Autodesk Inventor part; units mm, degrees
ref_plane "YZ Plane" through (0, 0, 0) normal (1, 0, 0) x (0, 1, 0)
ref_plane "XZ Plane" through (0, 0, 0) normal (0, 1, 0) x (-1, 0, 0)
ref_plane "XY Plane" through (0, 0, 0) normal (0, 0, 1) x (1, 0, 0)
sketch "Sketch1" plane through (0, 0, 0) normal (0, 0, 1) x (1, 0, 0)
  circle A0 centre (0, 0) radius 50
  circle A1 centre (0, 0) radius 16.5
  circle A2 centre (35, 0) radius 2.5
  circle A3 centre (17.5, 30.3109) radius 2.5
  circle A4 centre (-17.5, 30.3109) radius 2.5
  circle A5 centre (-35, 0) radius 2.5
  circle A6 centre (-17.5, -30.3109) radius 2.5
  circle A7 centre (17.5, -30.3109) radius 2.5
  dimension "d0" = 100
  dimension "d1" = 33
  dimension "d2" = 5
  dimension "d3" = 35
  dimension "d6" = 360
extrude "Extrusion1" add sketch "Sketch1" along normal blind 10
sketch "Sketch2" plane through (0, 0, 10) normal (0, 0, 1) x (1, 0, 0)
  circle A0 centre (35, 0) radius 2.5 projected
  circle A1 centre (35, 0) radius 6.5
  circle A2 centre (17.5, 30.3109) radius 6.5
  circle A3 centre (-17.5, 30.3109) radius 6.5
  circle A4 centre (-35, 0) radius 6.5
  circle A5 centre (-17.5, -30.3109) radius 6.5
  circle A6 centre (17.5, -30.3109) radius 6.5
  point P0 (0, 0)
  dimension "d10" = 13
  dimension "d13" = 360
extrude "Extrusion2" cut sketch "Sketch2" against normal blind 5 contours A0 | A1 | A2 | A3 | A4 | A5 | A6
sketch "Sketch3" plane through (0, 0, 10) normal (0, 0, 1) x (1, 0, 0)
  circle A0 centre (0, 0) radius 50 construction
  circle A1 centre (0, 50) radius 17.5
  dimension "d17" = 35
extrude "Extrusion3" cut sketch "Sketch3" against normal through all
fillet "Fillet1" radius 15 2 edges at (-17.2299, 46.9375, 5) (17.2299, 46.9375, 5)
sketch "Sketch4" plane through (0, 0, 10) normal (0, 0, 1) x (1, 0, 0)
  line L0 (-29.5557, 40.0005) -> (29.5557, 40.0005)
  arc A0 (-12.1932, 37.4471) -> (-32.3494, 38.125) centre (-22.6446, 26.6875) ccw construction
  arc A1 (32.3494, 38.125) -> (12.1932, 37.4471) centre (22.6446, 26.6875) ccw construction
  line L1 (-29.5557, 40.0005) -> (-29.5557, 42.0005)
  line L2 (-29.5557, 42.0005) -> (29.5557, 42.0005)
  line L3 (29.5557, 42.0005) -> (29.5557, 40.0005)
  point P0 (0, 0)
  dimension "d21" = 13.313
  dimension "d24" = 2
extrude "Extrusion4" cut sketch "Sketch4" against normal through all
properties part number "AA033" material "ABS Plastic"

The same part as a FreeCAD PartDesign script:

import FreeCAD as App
import Part
import Sketcher

V = App.Vector


def edges_at(feature, points):
    """Names of the edges that pass closest to the given points."""
    edges = feature.Shape.Edges
    near = lambda p: min(range(len(edges)), key=lambda i: edges[i].distToShape(Part.Vertex(*p))[0])
    return sorted({f"Edge{near(p) + 1}" for p in points})

doc = App.newDocument("Part")
params = doc.addObject("Spreadsheet::Sheet", "Params")
for row, (alias, value) in enumerate([
    ("sketch1_diameter", "100 mm"),
    ("sketch1_diameter2", "5 mm"),
    ("sketch1_diameter3", "33 mm"),
    ("pad1_length", "10 mm"),
    ("sketch2_diameter", "13 mm"),
    ("pocket1_length", "5 mm"),
    ("sketch3_diameter", "35 mm"),
    ("fillet_radius", "15 mm"),
    ("sketch4_height", "2 mm"),
], start=1):
    params.set(f"A{row}", alias)
    params.set(f"B{row}", "=" + value)
    params.setAlias(f"B{row}", alias)

body = doc.addObject("PartDesign::Body", "Body")

# Sketch on XY plane
sketch1 = doc.addObject("Sketcher::SketchObject", "Sketch")
body.addObject(sketch1)
sketch1.AttachmentSupport = (doc.XY_Plane, [""])
sketch1.MapMode = "FlatFace"
sketch1.addGeometry([
    Part.Circle(V(0, 0, 0), V(0, 0, 1), 50),  # 0
    Part.Circle(V(-17.5, -30.3, 0), V(0, 0, 1), 2.5),  # 1
    Part.Circle(V(17.5, -30.3, 0), V(0, 0, 1), 2.5),  # 2
    Part.Circle(V(-35, 0, 0), V(0, 0, 1), 2.5),  # 3
    Part.Circle(V(-17.5, 30.3, 0), V(0, 0, 1), 2.5),  # 4
    Part.Circle(V(0, 0, 0), V(0, 0, 1), 16.5),  # 5
    Part.Circle(V(35, 0, 0), V(0, 0, 1), 2.5),  # 6
    Part.Circle(V(17.5, 30.3, 0), V(0, 0, 1), 2.5),  # 7
], False)
sketch1.addConstraint([
    Sketcher.Constraint("Coincident", 0, 3, -1, 1),
    Sketcher.Constraint("Coincident", 5, 3, -1, 1),
    Sketcher.Constraint("Equal", 1, 2),
    Sketcher.Constraint("Equal", 2, 3),
    Sketcher.Constraint("Equal", 3, 4),
    Sketcher.Constraint("Equal", 4, 6),
    Sketcher.Constraint("Equal", 6, 7),
    Sketcher.Constraint("Symmetric", 2, 3, 4, 3, -1, 1),
    Sketcher.Constraint("Symmetric", 3, 3, 6, 3, -1, 1),
    Sketcher.Constraint("Symmetric", 1, 3, 7, 3, -1, 1),
    Sketcher.Constraint("Symmetric", 1, 3, 2, 3, -2),
    Sketcher.Constraint("PointOnObject", 3, 3, -1),
    Sketcher.Constraint("Diameter", 0, 100.0),
    Sketcher.Constraint("Diameter", 1, 5.0),
    Sketcher.Constraint("Diameter", 5, 33.0),
    Sketcher.Constraint("DistanceX", 3, 3, -1, 1, 35.0),
    Sketcher.Constraint("DistanceX", 1, 3, 2, 3, 35.0),
    Sketcher.Constraint("DistanceY", 1, 3, -1, 1, 30.311),
])
sketch1.setExpression("Constraints[12]", "Params.sketch1_diameter")
sketch1.setExpression("Constraints[13]", "Params.sketch1_diameter2")
sketch1.setExpression("Constraints[14]", "Params.sketch1_diameter3")
pad1 = doc.addObject("PartDesign::Pad", "Pad")
body.addObject(pad1)
pad1.Profile = sketch1
pad1.setExpression("Length", "Params.pad1_length")

# Sketch on XY plane
sketch2 = doc.addObject("Sketcher::SketchObject", "Sketch001")
body.addObject(sketch2)
sketch2.AttachmentSupport = (doc.XY_Plane, [""])
sketch2.MapMode = "FlatFace"
sketch2.AttachmentOffset = App.Placement(V(0, 0, 10), App.Rotation())
sketch2.addGeometry([
    Part.Circle(V(35, 0, 0), V(0, 0, 1), 6),  # 0
    Part.Circle(V(18, 30, 0), V(0, 0, 1), 6),  # 1
    Part.Circle(V(-18, 30, 0), V(0, 0, 1), 6),  # 2
    Part.Circle(V(-35, 0, 0), V(0, 0, 1), 6),  # 3
    Part.Circle(V(-18, -30, 0), V(0, 0, 1), 6),  # 4
    Part.Circle(V(18, -30, 0), V(0, 0, 1), 6),  # 5
], False)
sketch2.addConstraint([
    Sketcher.Constraint("Equal", 0, 1),
    Sketcher.Constraint("Equal", 1, 2),
    Sketcher.Constraint("Equal", 2, 3),
    Sketcher.Constraint("Equal", 3, 4),
    Sketcher.Constraint("Equal", 4, 5),
    Sketcher.Constraint("Symmetric", 0, 3, 3, 3, -1, 1),
    Sketcher.Constraint("Symmetric", 1, 3, 4, 3, -1, 1),
    Sketcher.Constraint("Symmetric", 2, 3, 5, 3, -1, 1),
    Sketcher.Constraint("Symmetric", 1, 3, 2, 3, -2),
    Sketcher.Constraint("PointOnObject", 0, 3, -1),
    Sketcher.Constraint("Diameter", 0, 13.0),
    Sketcher.Constraint("DistanceX", -1, 1, 0, 3, 35.0),
    Sketcher.Constraint("DistanceX", 2, 3, 1, 3, 35.0),
    Sketcher.Constraint("DistanceY", -1, 1, 1, 3, 30.311),
])
sketch2.setExpression("Constraints[10]", "Params.sketch2_diameter")
pocket1 = doc.addObject("PartDesign::Pocket", "Pocket")
body.addObject(pocket1)
pocket1.Profile = sketch2
pocket1.setExpression("Length", "Params.pocket1_length")

# Sketch on XY plane
sketch3 = doc.addObject("Sketcher::SketchObject", "Sketch002")
body.addObject(sketch3)
sketch3.AttachmentSupport = (doc.XY_Plane, [""])
sketch3.MapMode = "FlatFace"
sketch3.AttachmentOffset = App.Placement(V(0, 0, 10), App.Rotation())
sketch3.addGeometry(Part.Circle(V(0, 50, 0), V(0, 0, 1), 18), False)
sketch3.addConstraint([
    Sketcher.Constraint("PointOnObject", 0, 3, -2),
    Sketcher.Constraint("Diameter", 0, 35.0),
    Sketcher.Constraint("DistanceY", -1, 1, 0, 3, 50.0),
])
sketch3.setExpression("Constraints[1]", "Params.sketch3_diameter")
pocket2 = doc.addObject("PartDesign::Pocket", "Pocket001")
body.addObject(pocket2)
pocket2.Profile = sketch3
pocket2.Type = "ThroughAll"
doc.recompute()

fillet = doc.addObject("PartDesign::Fillet", "Fillet")
body.addObject(fillet)
fillet.Base = (pocket2, edges_at(pocket2, [(-17.23, 46.938, 5), (17.23, 46.938, 5)]))
fillet.setExpression("Radius", "Params.fillet_radius")

# Sketch on XY plane
sketch4 = doc.addObject("Sketcher::SketchObject", "Sketch003")
body.addObject(sketch4)
sketch4.AttachmentSupport = (doc.XY_Plane, [""])
sketch4.MapMode = "FlatFace"
sketch4.AttachmentOffset = App.Placement(V(0, 0, 10), App.Rotation())
sketch4.addGeometry([
    Part.LineSegment(V(-29.6, 42, 0), V(-29.6, 40, 0)),
    Part.LineSegment(V(-29.6, 40, 0), V(29.6, 40, 0)),
    Part.LineSegment(V(29.6, 40, 0), V(29.6, 42, 0)),
    Part.LineSegment(V(29.6, 42, 0), V(-29.6, 42, 0)),
], False)
sketch4.addConstraint([
    Sketcher.Constraint("Coincident", 0, 2, 1, 1),
    Sketcher.Constraint("Coincident", 1, 2, 2, 1),
    Sketcher.Constraint("Coincident", 2, 2, 3, 1),
    Sketcher.Constraint("Coincident", 3, 2, 0, 1),
    Sketcher.Constraint("Vertical", 0),
    Sketcher.Constraint("Horizontal", 1),
    Sketcher.Constraint("Vertical", 2),
    Sketcher.Constraint("Horizontal", 3),
    Sketcher.Constraint("DistanceY", 0, 2, 0, 1, 2.0),
    Sketcher.Constraint("DistanceX", 1, 1, 1, 2, 59.1114),
    Sketcher.Constraint("DistanceX", 0, 2, -1, 1, 29.5557),
    Sketcher.Constraint("DistanceY", -1, 1, 0, 2, 40.0005),
])
sketch4.setExpression("Constraints[8]", "Params.sketch4_height")
pocket3 = doc.addObject("PartDesign::Pocket", "Pocket002")
body.addObject(pocket3)
pocket3.Profile = sketch4
pocket3.Type = "ThroughAll"

doc.recompute()
